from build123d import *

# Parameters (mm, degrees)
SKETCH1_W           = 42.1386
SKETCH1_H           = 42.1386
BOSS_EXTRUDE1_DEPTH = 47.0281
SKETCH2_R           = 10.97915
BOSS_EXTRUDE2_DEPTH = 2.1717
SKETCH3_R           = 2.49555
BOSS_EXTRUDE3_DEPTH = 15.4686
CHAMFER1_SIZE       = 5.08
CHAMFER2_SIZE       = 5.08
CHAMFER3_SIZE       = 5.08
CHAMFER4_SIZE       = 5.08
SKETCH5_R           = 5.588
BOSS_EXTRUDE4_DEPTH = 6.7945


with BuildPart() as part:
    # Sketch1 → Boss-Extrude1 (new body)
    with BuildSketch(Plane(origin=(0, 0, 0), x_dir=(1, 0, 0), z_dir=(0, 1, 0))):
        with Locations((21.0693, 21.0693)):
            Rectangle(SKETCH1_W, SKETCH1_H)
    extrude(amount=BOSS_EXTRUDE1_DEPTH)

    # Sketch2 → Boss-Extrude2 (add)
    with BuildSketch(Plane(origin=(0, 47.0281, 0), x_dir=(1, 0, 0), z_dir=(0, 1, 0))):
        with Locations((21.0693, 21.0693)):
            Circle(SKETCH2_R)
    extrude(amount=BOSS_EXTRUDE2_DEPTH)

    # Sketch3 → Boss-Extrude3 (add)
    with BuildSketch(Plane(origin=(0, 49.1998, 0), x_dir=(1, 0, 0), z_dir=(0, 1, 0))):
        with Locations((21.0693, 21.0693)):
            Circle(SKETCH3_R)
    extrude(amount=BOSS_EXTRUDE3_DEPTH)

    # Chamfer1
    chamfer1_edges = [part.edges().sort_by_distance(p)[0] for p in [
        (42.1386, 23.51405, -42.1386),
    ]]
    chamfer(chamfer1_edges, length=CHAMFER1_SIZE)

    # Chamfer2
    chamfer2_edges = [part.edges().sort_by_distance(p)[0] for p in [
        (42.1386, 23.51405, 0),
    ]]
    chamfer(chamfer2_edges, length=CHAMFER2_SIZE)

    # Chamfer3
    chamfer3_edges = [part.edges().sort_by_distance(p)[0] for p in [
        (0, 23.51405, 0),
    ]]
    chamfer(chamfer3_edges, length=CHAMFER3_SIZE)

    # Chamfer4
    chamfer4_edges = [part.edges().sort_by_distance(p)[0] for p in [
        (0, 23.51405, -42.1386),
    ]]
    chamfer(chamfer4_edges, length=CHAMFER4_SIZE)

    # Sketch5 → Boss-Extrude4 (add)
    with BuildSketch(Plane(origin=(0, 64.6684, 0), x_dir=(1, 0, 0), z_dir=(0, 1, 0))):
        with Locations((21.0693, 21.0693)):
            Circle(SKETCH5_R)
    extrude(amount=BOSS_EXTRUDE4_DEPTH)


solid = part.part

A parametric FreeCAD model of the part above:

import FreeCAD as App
import Part
import Sketcher

V = App.Vector
Q = App.Units.Quantity


def edges_at(feature, points):
    """Names of the edges that pass closest to the given points."""
    edges = feature.Shape.Edges
    near = lambda p: min(range(len(edges)), key=lambda i: edges[i].distToShape(Part.Vertex(*p))[0])
    return sorted({f"Edge{near(p) + 1}" for p in points})


def add_polygon(sketch, points):
    """Adds a closed chain of lines whose ends are joined by coincident constraints."""
    first, n = sketch.GeometryCount, len(points)
    for a, b in zip(points, points[1:] + points[:1]):
        sketch.addGeometry(Part.LineSegment(App.Vector(*a, 0), App.Vector(*b, 0)), False)
    for i in range(n):
        sketch.addConstraint(Sketcher.Constraint("Coincident", first + i, 2, first + (i + 1) % n, 1))

doc = App.newDocument("Part")
body = doc.addObject("PartDesign::Body", "Body")

# Sketch on XZ plane
sketch1 = body.newObject("Sketcher::SketchObject", "Sketch")
sketch1.AttachmentSupport = (doc.getObject("XZ_Plane"), [""])
sketch1.MapMode = "FlatFace"
add_polygon(sketch1, [(0, -42), (0, 0), (42, 0), (42, -42)])  # lines 0-3
sketch1.addConstraint(Sketcher.Constraint("Vertical", 0))
sketch1.addConstraint(Sketcher.Constraint("Horizontal", 1))
sketch1.addConstraint(Sketcher.Constraint("Vertical", 2))
sketch1.addConstraint(Sketcher.Constraint("Horizontal", 3))
sketch1.addConstraint(Sketcher.Constraint("Coincident", 0, 2, -1, 1))
sketch1.addConstraint(Sketcher.Constraint("Equal", 3, 0))
sketch1.addConstraint(Sketcher.Constraint("DistanceX", 1, 1, 1, 2, Q("1.659 in")))
pad1 = body.newObject("PartDesign::Pad", "Pad")
pad1.Profile = sketch1
pad1.Length = Q("1.8515 in")
pad1.Reversed = True

# Sketch on XZ plane
sketch2 = body.newObject("Sketcher::SketchObject", "Sketch001")
sketch2.AttachmentSupport = (doc.getObject("XZ_Plane"), [""])
sketch2.MapMode = "FlatFace"
sketch2.AttachmentOffset = App.Placement(V(0, 0, -1.8515 * 25.4), App.Rotation())
sketch2.addGeometry(Part.Circle(V(21, -21, 0), V(0, 0, 1), 11), False)
sketch2.addConstraint(Sketcher.Constraint("Diameter", 0, Q("0.8645 in")))
sketch2.addConstraint(Sketcher.Constraint("DistanceX", -1, 1, 0, 3, Q("0.8295 in")))
sketch2.addConstraint(Sketcher.Constraint("DistanceY", 0, 3, -1, 1, Q("0.8295 in")))
pad2 = body.newObject("PartDesign::Pad", "Pad001")
pad2.Profile = sketch2
pad2.Length = Q("0.0855 in")
pad2.Reversed = True

# Sketch on XZ plane
sketch3 = body.newObject("Sketcher::SketchObject", "Sketch002")
sketch3.AttachmentSupport = (doc.getObject("XZ_Plane"), [""])
sketch3.MapMode = "FlatFace"
sketch3.AttachmentOffset = App.Placement(V(0, 0, -1.937 * 25.4), App.Rotation())
sketch3.addGeometry(Part.Circle(V(21.1, -21.1, 0), V(0, 0, 1), 2.5), False)
sketch3.addConstraint(Sketcher.Constraint("Diameter", 0, Q("0.1965 in")))
sketch3.addConstraint(Sketcher.Constraint("DistanceX", -1, 1, 0, 3, Q("0.8295 in")))
sketch3.addConstraint(Sketcher.Constraint("DistanceY", 0, 3, -1, 1, Q("0.8295 in")))
pad3 = body.newObject("PartDesign::Pad", "Pad002")
pad3.Profile = sketch3
pad3.Length = Q("0.609 in")
pad3.Reversed = True
doc.recompute()

chamfer = body.newObject("PartDesign::Chamfer", "Chamfer")
chamfer.Base = (pad3, edges_at(pad3, [(42.139, 23.514, -42.139)]))
chamfer.Size = Q("0.2 in")
doc.recompute()

chamfer2 = body.newObject("PartDesign::Chamfer", "Chamfer001")
chamfer2.Base = (chamfer, edges_at(chamfer, [(42.139, 23.514, 0)]))
chamfer2.Size = Q("0.2 in")
doc.recompute()

chamfer3 = body.newObject("PartDesign::Chamfer", "Chamfer002")
chamfer3.Base = (chamfer2, edges_at(chamfer2, [(0, 23.514, 0)]))
chamfer3.Size = Q("0.2 in")
doc.recompute()

chamfer4 = body.newObject("PartDesign::Chamfer", "Chamfer003")
chamfer4.Base = (chamfer3, edges_at(chamfer3, [(0, 23.514, -42.139)]))
chamfer4.Size = Q("0.2 in")

# Sketch on XZ plane
sketch4 = body.newObject("Sketcher::SketchObject", "Sketch003")
sketch4.AttachmentSupport = (doc.getObject("XZ_Plane"), [""])
sketch4.MapMode = "FlatFace"
sketch4.AttachmentOffset = App.Placement(V(0, 0, -2.546 * 25.4), App.Rotation())
sketch4.addGeometry(Part.Circle(V(21, -21, 0), V(0, 0, 1), 6), False)
sketch4.addConstraint(Sketcher.Constraint("Diameter", 0, Q("0.44 in")))
sketch4.addConstraint(Sketcher.Constraint("DistanceX", -1, 1, 0, 3, Q("0.8295 in")))
sketch4.addConstraint(Sketcher.Constraint("DistanceY", 0, 3, -1, 1, Q("0.8295 in")))
pad4 = body.newObject("PartDesign::Pad", "Pad003")
pad4.Profile = sketch4
pad4.Length = Q("0.2675 in")
pad4.Reversed = True

doc.recompute()
